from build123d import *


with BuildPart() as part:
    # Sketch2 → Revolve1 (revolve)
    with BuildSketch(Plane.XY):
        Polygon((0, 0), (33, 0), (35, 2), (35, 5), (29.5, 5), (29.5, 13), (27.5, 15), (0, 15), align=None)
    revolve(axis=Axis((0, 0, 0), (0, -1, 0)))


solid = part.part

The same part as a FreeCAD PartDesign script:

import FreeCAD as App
import Part
import Sketcher
Q = App.Units.Quantity


def add_polygon(sketch, points):
    """Adds a closed chain of lines whose ends are joined by coincident constraints."""
    first, n = sketch.GeometryCount, len(points)
    for a, b in zip(points, points[1:] + points[:1]):
        sketch.addGeometry(Part.LineSegment(App.Vector(*a, 0), App.Vector(*b, 0)), False)
    for i in range(n):
        sketch.addConstraint(Sketcher.Constraint("Coincident", first + i, 2, first + (i + 1) % n, 1))

doc = App.newDocument("Part")
body = doc.addObject("PartDesign::Body", "Body")

sketch1 = body.newObject("Sketcher::SketchObject", "Sketch")
sketch1.AttachmentSupport = (doc.getObject("XY_Plane"), [""])
sketch1.MapMode = "FlatFace"
add_polygon(sketch1, [(0, 0), (33, 0), (35, 2), (35, 5), (29.5, 5), (29.5, 13), (27.5, 15), (0, 15)])
sketch1.addConstraint([
    Sketcher.Constraint("Horizontal", 0),
    Sketcher.Constraint("Vertical", 2),
    Sketcher.Constraint("Horizontal", 3),
    Sketcher.Constraint("Vertical", 4),
    Sketcher.Constraint("Horizontal", 6),
    Sketcher.Constraint("Vertical", 7),
    Sketcher.Constraint("Coincident", 7, 2, -1, 1),
    Sketcher.Constraint("Perpendicular", 1, 5),
    Sketcher.Constraint("Equal", 1, 5),
    Sketcher.Constraint("DistanceX", 0, 1, 0, 2, 33.0),
    Sketcher.Constraint("DistanceY", 2, 1, 2, 2, 3.0),
    Sketcher.Constraint("DistanceY", 4, 1, 4, 2, 8.0),
    Sketcher.Constraint("DistanceY", 7, 2, 7, 1, 15.0),
    Sketcher.Constraint("Angle", 1, Q("45 deg")),
    Sketcher.Constraint("DistanceX", 3, 2, 3, 1, 5.5),
])
revolution = body.newObject("PartDesign::Revolution", "Revolution")
revolution.Profile = sketch1
revolution.ReferenceAxis = (sketch1, ["V_Axis"])
revolution.Angle = 360

doc.recompute()
